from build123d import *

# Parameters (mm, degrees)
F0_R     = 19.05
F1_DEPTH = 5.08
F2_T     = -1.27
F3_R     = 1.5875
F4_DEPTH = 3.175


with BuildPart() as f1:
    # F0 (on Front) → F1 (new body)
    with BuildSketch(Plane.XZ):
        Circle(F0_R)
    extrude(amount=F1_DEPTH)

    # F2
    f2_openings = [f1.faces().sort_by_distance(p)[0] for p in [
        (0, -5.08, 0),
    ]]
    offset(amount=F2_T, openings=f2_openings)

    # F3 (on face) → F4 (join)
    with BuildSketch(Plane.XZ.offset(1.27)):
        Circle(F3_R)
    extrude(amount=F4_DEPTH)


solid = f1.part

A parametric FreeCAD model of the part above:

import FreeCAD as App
import Part
import Sketcher
Q = App.Units.Quantity


def faces_at(feature, points):
    """Names of the faces that lie closest to the given points."""
    faces = feature.Shape.Faces
    near = lambda p: min(range(len(faces)), key=lambda i: faces[i].distToShape(Part.Vertex(*p))[0])
    return sorted({f"Face{near(p) + 1}" for p in points})

doc = App.newDocument("Part")
params = doc.addObject("Spreadsheet::Sheet", "Params")
for row, (alias, value) in enumerate([
    ("sketch1_diameter", "1.5 in"),
    ("pad1_length", "0.2 in"),
    ("thickness_wall", "0.05 in"),
    ("sketch2_diameter", "0.125 in"),
    ("pad2_length", "0.125 in"),
], start=1):
    params.set(f"A{row}", alias)
    params.set(f"B{row}", "=" + value)
    params.setAlias(f"B{row}", alias)

body = doc.addObject("PartDesign::Body", "Body")

# Sketch on XZ plane
sketch1 = body.newObject("Sketcher::SketchObject", "Sketch")
sketch1.AttachmentSupport = (doc.getObject("XZ_Plane"), [""])
sketch1.MapMode = "FlatFace"
sketch1.addGeometry(Part.Circle(App.Vector(0, 0, 0), App.Vector(0, 0, 1), 19), False)
sketch1.addConstraint([
    Sketcher.Constraint("Coincident", 0, 3, -1, 1),
    Sketcher.Constraint("Diameter", 0, Q("1.5 in")),
])
sketch1.setExpression("Constraints[1]", "Params.sketch1_diameter")
pad1 = body.newObject("PartDesign::Pad", "Pad")
pad1.Profile = sketch1
pad1.setExpression("Length", "Params.pad1_length")
doc.recompute()

thickness = body.newObject("PartDesign::Thickness", "Thickness")
thickness.Base = (pad1, faces_at(pad1, [(0, -5.08, 0)]))
thickness.setExpression("Value", "Params.thickness_wall")
thickness.Reversed = True
thickness.Join = "Arc"

# Sketch on XZ plane
sketch2 = body.newObject("Sketcher::SketchObject", "Sketch001")
sketch2.AttachmentSupport = (doc.getObject("XZ_Plane"), [""])
sketch2.MapMode = "FlatFace"
sketch2.AttachmentOffset = App.Placement(App.Vector(0, 0, 0.05 * 25.4), App.Rotation())
sketch2.addGeometry(Part.Circle(App.Vector(0, 0, 0), App.Vector(0, 0, 1), 1.6), False)
sketch2.addConstraint([
    Sketcher.Constraint("Coincident", 0, 3, -1, 1),
    Sketcher.Constraint("Diameter", 0, Q("0.125 in")),
])
sketch2.setExpression("Constraints[1]", "Params.sketch2_diameter")
pad2 = body.newObject("PartDesign::Pad", "Pad001")
pad2.Profile = sketch2
pad2.setExpression("Length", "Params.pad2_length")

doc.recompute()
